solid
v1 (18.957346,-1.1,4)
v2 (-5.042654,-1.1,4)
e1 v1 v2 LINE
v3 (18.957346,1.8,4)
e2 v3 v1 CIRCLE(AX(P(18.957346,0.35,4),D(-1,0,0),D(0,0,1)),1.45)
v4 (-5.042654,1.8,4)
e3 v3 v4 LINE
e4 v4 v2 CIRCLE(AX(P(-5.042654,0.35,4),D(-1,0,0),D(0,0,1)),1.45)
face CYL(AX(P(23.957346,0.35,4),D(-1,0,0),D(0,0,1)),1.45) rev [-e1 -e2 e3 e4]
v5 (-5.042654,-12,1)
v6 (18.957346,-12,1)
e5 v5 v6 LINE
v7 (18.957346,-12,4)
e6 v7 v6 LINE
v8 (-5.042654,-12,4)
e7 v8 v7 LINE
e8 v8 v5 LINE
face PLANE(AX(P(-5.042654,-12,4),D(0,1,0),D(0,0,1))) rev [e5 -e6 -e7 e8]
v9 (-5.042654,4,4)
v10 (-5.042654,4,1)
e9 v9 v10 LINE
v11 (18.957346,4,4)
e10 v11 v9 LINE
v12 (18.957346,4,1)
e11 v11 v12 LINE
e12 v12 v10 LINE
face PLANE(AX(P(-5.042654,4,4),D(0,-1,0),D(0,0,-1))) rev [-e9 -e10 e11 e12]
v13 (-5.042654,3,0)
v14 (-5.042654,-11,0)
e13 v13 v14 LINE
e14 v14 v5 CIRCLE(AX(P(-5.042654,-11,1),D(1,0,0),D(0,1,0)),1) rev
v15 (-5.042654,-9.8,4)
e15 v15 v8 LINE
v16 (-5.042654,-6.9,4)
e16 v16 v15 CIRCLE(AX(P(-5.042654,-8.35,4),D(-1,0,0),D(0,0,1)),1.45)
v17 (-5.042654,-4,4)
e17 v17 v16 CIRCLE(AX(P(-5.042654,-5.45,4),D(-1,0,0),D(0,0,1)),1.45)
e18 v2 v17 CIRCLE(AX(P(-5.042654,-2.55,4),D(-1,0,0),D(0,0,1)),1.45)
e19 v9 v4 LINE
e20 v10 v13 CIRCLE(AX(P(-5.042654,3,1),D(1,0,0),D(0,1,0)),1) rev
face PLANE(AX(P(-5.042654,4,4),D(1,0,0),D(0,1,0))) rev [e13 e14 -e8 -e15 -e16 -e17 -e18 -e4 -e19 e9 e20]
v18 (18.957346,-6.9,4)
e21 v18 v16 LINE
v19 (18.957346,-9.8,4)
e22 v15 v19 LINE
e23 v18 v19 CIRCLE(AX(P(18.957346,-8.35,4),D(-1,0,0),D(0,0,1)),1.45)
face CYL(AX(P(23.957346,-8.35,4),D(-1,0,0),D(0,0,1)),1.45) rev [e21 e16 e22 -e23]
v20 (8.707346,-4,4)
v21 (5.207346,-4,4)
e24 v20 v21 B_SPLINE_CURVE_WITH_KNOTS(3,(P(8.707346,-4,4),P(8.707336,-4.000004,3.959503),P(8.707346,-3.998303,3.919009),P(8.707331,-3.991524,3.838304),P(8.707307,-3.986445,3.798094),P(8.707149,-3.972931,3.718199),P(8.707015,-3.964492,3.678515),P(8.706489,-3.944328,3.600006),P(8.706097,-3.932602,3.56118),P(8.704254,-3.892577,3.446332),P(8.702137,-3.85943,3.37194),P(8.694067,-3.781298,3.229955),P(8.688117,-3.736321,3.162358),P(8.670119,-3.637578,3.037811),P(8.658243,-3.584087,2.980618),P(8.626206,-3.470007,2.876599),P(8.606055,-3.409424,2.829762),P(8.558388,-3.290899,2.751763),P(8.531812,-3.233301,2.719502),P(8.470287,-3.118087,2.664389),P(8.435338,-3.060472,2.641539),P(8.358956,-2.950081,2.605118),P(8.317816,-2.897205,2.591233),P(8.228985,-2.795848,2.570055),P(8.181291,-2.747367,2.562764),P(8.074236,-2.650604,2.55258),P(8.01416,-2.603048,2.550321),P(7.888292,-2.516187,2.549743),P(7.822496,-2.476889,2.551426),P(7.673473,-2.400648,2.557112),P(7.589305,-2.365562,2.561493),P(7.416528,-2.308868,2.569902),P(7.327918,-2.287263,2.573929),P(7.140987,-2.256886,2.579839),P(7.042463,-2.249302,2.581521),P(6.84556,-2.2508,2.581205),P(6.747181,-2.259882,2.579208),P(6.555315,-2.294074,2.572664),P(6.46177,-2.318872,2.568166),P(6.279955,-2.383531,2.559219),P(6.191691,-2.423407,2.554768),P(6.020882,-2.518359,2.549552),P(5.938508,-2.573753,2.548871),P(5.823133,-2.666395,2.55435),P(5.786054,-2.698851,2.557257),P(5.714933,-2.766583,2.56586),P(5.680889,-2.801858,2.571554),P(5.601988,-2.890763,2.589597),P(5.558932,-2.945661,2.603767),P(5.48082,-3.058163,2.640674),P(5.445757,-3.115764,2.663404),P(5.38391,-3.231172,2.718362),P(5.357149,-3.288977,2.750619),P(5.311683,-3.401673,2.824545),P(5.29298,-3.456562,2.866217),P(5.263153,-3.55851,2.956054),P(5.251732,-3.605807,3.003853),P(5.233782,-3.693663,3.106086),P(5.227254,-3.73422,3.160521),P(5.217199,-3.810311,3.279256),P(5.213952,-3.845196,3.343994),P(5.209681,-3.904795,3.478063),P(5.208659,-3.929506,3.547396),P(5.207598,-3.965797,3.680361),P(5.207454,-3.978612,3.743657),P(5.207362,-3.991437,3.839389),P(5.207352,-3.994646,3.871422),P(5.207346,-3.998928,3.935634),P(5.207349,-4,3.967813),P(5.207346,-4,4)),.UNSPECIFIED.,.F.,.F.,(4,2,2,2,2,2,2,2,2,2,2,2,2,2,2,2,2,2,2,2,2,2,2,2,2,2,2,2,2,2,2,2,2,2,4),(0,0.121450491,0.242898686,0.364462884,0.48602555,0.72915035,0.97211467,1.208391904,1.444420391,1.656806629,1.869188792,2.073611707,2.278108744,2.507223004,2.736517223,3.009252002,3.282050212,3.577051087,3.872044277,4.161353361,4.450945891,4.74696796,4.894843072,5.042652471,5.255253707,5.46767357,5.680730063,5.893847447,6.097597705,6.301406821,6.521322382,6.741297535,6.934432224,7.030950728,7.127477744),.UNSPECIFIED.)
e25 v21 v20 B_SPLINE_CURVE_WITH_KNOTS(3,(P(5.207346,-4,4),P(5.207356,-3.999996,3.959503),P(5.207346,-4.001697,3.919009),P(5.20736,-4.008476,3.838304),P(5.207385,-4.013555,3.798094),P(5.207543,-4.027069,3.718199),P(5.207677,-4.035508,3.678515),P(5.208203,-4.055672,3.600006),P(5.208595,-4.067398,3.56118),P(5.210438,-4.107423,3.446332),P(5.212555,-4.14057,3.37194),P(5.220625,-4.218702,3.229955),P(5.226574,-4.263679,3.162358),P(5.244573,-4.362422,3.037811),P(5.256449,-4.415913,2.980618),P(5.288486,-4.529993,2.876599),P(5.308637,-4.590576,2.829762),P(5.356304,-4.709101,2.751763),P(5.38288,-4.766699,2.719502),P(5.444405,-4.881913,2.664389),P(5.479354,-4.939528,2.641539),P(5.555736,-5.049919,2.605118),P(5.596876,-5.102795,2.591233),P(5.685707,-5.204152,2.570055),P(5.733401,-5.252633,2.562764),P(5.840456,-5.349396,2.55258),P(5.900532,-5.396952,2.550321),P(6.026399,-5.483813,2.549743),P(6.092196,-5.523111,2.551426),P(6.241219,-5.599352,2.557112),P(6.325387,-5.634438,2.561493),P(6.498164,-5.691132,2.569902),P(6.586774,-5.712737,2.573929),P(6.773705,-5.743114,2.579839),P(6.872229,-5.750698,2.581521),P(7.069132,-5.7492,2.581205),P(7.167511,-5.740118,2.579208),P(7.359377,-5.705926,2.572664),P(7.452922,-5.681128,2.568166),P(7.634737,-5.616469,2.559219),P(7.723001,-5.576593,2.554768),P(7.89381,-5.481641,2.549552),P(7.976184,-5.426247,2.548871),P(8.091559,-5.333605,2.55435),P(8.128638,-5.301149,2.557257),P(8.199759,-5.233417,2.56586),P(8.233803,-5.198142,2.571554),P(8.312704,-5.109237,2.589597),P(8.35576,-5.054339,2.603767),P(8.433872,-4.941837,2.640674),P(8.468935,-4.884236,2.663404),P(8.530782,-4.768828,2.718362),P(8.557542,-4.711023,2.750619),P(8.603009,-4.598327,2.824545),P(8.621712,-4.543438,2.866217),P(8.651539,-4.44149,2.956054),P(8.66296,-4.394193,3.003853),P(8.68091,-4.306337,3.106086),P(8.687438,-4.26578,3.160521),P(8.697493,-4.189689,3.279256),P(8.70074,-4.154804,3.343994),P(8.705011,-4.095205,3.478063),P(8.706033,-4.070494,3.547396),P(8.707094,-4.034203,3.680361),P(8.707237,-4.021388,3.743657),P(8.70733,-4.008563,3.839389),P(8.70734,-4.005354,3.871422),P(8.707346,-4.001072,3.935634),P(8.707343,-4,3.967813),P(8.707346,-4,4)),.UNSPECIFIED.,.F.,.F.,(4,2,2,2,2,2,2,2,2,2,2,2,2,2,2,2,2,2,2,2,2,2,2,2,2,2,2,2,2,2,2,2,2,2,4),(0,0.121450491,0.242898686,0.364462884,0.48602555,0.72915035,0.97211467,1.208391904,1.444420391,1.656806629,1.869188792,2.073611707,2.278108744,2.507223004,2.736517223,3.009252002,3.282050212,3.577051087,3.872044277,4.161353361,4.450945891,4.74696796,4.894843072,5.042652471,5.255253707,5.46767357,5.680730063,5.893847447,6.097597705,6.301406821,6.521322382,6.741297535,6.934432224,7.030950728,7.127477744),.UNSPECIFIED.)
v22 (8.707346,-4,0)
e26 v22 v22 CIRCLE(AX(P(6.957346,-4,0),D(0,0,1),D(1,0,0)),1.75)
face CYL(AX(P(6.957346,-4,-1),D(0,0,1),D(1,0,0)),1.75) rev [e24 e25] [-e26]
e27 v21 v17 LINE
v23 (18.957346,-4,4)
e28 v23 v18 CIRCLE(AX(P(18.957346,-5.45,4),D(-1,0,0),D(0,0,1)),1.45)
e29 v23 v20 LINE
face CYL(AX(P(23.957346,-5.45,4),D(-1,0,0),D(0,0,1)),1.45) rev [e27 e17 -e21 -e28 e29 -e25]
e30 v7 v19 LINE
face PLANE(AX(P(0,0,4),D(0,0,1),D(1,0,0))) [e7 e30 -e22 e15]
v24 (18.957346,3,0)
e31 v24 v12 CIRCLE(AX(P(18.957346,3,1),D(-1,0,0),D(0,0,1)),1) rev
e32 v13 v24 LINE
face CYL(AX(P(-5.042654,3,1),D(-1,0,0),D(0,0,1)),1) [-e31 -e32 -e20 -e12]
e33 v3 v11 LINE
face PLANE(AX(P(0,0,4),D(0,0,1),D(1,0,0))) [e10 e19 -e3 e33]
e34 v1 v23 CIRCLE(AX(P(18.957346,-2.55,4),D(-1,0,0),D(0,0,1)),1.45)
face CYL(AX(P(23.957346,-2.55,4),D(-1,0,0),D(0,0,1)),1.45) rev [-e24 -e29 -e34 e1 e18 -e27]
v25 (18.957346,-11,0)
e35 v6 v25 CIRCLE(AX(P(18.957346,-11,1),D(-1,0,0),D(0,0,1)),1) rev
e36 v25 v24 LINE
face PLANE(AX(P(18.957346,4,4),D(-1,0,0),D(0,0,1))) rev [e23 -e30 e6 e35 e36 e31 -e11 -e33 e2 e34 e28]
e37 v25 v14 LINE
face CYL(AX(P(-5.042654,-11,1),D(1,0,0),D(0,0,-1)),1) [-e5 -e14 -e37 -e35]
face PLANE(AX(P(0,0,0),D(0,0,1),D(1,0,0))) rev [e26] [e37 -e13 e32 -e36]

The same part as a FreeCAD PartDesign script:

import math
import FreeCAD as App
import Part
import Sketcher
Q = App.Units.Quantity


def edges_at(feature, points):
    """Names of the edges that pass closest to the given points."""
    edges = feature.Shape.Edges
    near = lambda p: min(range(len(edges)), key=lambda i: edges[i].distToShape(Part.Vertex(*p))[0])
    return sorted({f"Edge{near(p) + 1}" for p in points})


def add_polygon(sketch, points):
    """Adds a closed chain of lines whose ends are joined by coincident constraints."""
    first, n = sketch.GeometryCount, len(points)
    for a, b in zip(points, points[1:] + points[:1]):
        sketch.addGeometry(Part.LineSegment(App.Vector(*a, 0), App.Vector(*b, 0)), False)
    for i in range(n):
        sketch.addConstraint(Sketcher.Constraint("Coincident", first + i, 2, first + (i + 1) % n, 1))

doc = App.newDocument("Part")
params = doc.addObject("Spreadsheet::Sheet", "Params")
for row, (alias, value) in enumerate([
    ("sketch1_width", "24 mm"),
    ("sketch1_height", "16 mm"),
    ("pad1_length", "4 mm"),
    ("sketch2_diameter", "3.5 mm"),
    ("pocket1_length", "5 mm"),
    ("fillet_radius", "1 mm"),
    ("sketch3_radius", "1.45 mm"),
    ("pocket2_length", "29 mm"),
], start=1):
    params.set(f"A{row}", alias)
    params.set(f"B{row}", "=" + value)
    params.setAlias(f"B{row}", alias)

body = doc.addObject("PartDesign::Body", "Body")

# Sketch on XY plane
sketch1 = doc.addObject("Sketcher::SketchObject", "Sketch")
body.addObject(sketch1)
sketch1.AttachmentSupport = (doc.XY_Plane, [""])
sketch1.MapMode = "FlatFace"
add_polygon(sketch1, [(-5, 4), (-5, -12), (19, -12), (19, 4)])  # lines 0-3
sketch1.addConstraint(Sketcher.Constraint("Vertical", 0))
sketch1.addConstraint(Sketcher.Constraint("Horizontal", 1))
sketch1.addConstraint(Sketcher.Constraint("Vertical", 2))
sketch1.addConstraint(Sketcher.Constraint("Horizontal", 3))
sketch1.addConstraint(Sketcher.Constraint("DistanceX", 1, 1, 1, 2, Q("24 mm")))
sketch1.addConstraint(Sketcher.Constraint("DistanceY", 0, 2, 0, 1, Q("16 mm")))
sketch1.addConstraint(Sketcher.Constraint("DistanceY", 0, 2, -1, 1, Q("12 mm")))
sketch1.addConstraint(Sketcher.Constraint("DistanceX", 0, 2, -1, 1, Q("5.042654 mm")))
sketch1.setExpression("Constraints[8]", "Params.sketch1_width")
sketch1.setExpression("Constraints[9]", "Params.sketch1_height")
pad1 = doc.addObject("PartDesign::Pad", "Pad")
body.addObject(pad1)
pad1.Profile = sketch1
pad1.setExpression("Length", "Params.pad1_length")

# Sketch on XY plane
sketch2 = doc.addObject("Sketcher::SketchObject", "Sketch001")
body.addObject(sketch2)
sketch2.AttachmentSupport = (doc.XY_Plane, [""])
sketch2.MapMode = "FlatFace"
sketch2.AttachmentOffset = App.Placement(App.Vector(0, 0, 4), App.Rotation())
sketch2.addGeometry(Part.Circle(App.Vector(7, -4, 0), App.Vector(0, 0, 1), 1.8), False)
sketch2.addConstraint(Sketcher.Constraint("Diameter", 0, Q("3.5 mm")))
sketch2.addConstraint(Sketcher.Constraint("DistanceY", 0, 3, -1, 1, Q("4 mm")))
sketch2.addConstraint(Sketcher.Constraint("DistanceX", -1, 1, 0, 3, Q("6.957346 mm")))
sketch2.setExpression("Constraints[0]", "Params.sketch2_diameter")
pocket1 = doc.addObject("PartDesign::Pocket", "Pocket")
body.addObject(pocket1)
pocket1.Profile = sketch2
pocket1.setExpression("Length", "Params.pocket1_length")
doc.recompute()

fillet = doc.addObject("PartDesign::Fillet", "Fillet")
body.addObject(fillet)
fillet.Base = (pocket1, edges_at(pocket1, [(6.957, 4, 0), (6.957, -12, 0)]))
fillet.setExpression("Radius", "Params.fillet_radius")

# Sketch on YZ plane
sketch3 = doc.addObject("Sketcher::SketchObject", "Sketch002")
body.addObject(sketch3)
sketch3.AttachmentSupport = (doc.YZ_Plane, [""])
sketch3.MapMode = "FlatFace"
sketch3.AttachmentOffset = App.Placement(App.Vector(0, 0, -5.042654), App.Rotation())
sketch3.addGeometry(Part.ArcOfCircle(Part.Circle(App.Vector(-8.3, 4, 0), App.Vector(0, 0, 1), 1.4), math.radians(0), math.radians(90)), False)
sketch3.addGeometry(Part.ArcOfCircle(Part.Circle(App.Vector(-8.3, 4, 0), App.Vector(0, 0, 1), 1.4), math.radians(180), math.radians(360)), False)
sketch3.addGeometry(Part.ArcOfCircle(Part.Circle(App.Vector(-8.4, 4, 0), App.Vector(0, 0, 1), 1.4), math.radians(90), math.radians(180)), False)
sketch3.addGeometry(Part.ArcOfCircle(Part.Circle(App.Vector(-5.5, 4, 0), App.Vector(0, 0, 1), 1.4), math.radians(90), math.radians(180)), False)
sketch3.addGeometry(Part.ArcOfCircle(Part.Circle(App.Vector(-5.5, 4, 0), App.Vector(0, 0, 1), 1.5), math.radians(0), math.radians(90)), False)
sketch3.addGeometry(Part.ArcOfCircle(Part.Circle(App.Vector(-5.5, 4, 0), App.Vector(0, 0, 1), 1.4), math.radians(180), math.radians(360)), False)
sketch3.addGeometry(Part.ArcOfCircle(Part.Circle(App.Vector(-2.5, 4, 0), App.Vector(0, 0, 1), 1.4), math.radians(-180), math.radians(0)), False)
sketch3.addGeometry(Part.ArcOfCircle(Part.Circle(App.Vector(-2.5, 4, 0), App.Vector(0, 0, 1), 1.5), math.radians(90), math.radians(180)), False)
sketch3.addGeometry(Part.ArcOfCircle(Part.Circle(App.Vector(-2.5, 4, 0), App.Vector(0, 0, 1), 1.4), math.radians(0), math.radians(90)), False)
sketch3.addGeometry(Part.ArcOfCircle(Part.Circle(App.Vector(0.3, 4, 0), App.Vector(0, 0, 1), 1.4), math.radians(180), math.radians(360)), False)
sketch3.addGeometry(Part.ArcOfCircle(Part.Circle(App.Vector(0.3, 4, 0), App.Vector(0, 0, 1), 1.4), math.radians(90), math.radians(180)), False)
sketch3.addGeometry(Part.ArcOfCircle(Part.Circle(App.Vector(0.4, 4, 0), App.Vector(0, 0, 1), 1.4), math.radians(0), math.radians(90)), False)
sketch3.addConstraint(Sketcher.Constraint("Tangent", 0, 1, 1, 2))
sketch3.addConstraint(Sketcher.Constraint("Tangent", 1, 1, 2, 2))
sketch3.addConstraint(Sketcher.Constraint("Tangent", 2, 1, 0, 2))
sketch3.addConstraint(Sketcher.Constraint("Tangent", 3, 1, 4, 2))
sketch3.addConstraint(Sketcher.Constraint("Tangent", 4, 1, 5, 2))
sketch3.addConstraint(Sketcher.Constraint("Tangent", 5, 1, 3, 2))
sketch3.addConstraint(Sketcher.Constraint("Tangent", 6, 1, 7, 2))
sketch3.addConstraint(Sketcher.Constraint("Tangent", 7, 1, 8, 2))
sketch3.addConstraint(Sketcher.Constraint("Tangent", 8, 1, 6, 2))
sketch3.addConstraint(Sketcher.Constraint("Tangent", 9, 1, 10, 2))
sketch3.addConstraint(Sketcher.Constraint("Tangent", 10, 1, 11, 2))
sketch3.addConstraint(Sketcher.Constraint("Tangent", 11, 1, 9, 2))
sketch3.addConstraint(Sketcher.Constraint("Coincident", 5, 1, 0, 1))
sketch3.addConstraint(Sketcher.Constraint("Coincident", 6, 1, 4, 1))
sketch3.addConstraint(Sketcher.Constraint("Coincident", 9, 1, 8, 1))
sketch3.addConstraint(Sketcher.Constraint("Equal", 2, 3))
sketch3.addConstraint(Sketcher.Constraint("Equal", 5, 6))
sketch3.addConstraint(Sketcher.Constraint("Equal", 8, 9))
sketch3.addConstraint(Sketcher.Constraint("Horizontal", 2, 3, 3, 3))
sketch3.addConstraint(Sketcher.Constraint("Horizontal", 5, 3, 6, 3))
sketch3.addConstraint(Sketcher.Constraint("Horizontal", 8, 3, 9, 3))
sketch3.addConstraint(Sketcher.Constraint("Horizontal", 11, 3, 0, 1))
sketch3.addConstraint(Sketcher.Constraint("Horizontal", 0, 1, 1, 1))
sketch3.addConstraint(Sketcher.Constraint("Horizontal", 1, 1, 4, 1))
sketch3.addConstraint(Sketcher.Constraint("Horizontal", 6, 1, 8, 1))
sketch3.addConstraint(Sketcher.Constraint("Horizontal", 9, 1, 11, 1))
sketch3.addConstraint(Sketcher.Constraint("Vertical", 1, 3, 2, 1))
sketch3.addConstraint(Sketcher.Constraint("Vertical", 5, 3, 3, 1))
sketch3.addConstraint(Sketcher.Constraint("Vertical", 8, 3, 7, 1))
sketch3.addConstraint(Sketcher.Constraint("Vertical", 11, 3, 10, 1))
sketch3.addConstraint(Sketcher.Constraint("Radius", 0, Q("1.45 mm")))
sketch3.addConstraint(Sketcher.Constraint("DistanceY", -1, 1, 0, 3, Q("4 mm")))
sketch3.addConstraint(Sketcher.Constraint("DistanceX", 4, 1, -1, 1, Q("4 mm")))
sketch3.setExpression("Constraints[30]", "Params.sketch3_radius")
pocket2 = doc.addObject("PartDesign::Pocket", "Pocket001")
body.addObject(pocket2)
pocket2.Profile = sketch3
pocket2.setExpression("Length", "Params.pocket2_length")
pocket2.Reversed = True

doc.recompute()
